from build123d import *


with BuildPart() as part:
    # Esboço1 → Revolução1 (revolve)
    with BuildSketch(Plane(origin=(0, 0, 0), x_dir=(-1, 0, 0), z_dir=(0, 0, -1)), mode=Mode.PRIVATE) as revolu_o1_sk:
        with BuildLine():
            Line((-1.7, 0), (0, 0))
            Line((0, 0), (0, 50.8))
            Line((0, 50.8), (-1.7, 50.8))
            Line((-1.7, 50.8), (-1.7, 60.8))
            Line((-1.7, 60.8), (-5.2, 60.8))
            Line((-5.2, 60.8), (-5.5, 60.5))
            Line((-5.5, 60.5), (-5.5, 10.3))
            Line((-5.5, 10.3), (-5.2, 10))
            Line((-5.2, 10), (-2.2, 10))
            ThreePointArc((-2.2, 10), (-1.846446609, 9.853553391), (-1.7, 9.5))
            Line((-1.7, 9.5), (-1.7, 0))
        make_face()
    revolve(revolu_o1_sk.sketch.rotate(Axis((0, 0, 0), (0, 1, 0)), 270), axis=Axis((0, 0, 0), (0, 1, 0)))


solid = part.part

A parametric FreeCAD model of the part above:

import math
import FreeCAD as App
import Part
import Sketcher

V = App.Vector
Q = App.Units.Quantity

doc = App.newDocument("Part")
body = doc.addObject("PartDesign::Body", "Body")

sketch1 = body.newObject("Sketcher::SketchObject", "Sketch")
sketch1.AttachmentSupport = (doc.getObject("XY_Plane"), [""])
sketch1.MapMode = "FlatFace"
sketch1.addGeometry([
    Part.LineSegment(V(1.7, 0, 0), V(0, 0, 0)),
    Part.LineSegment(V(0, 0, 0), V(0, 50.8, 0)),
    Part.LineSegment(V(0, 50.8, 0), V(1.7, 50.8, 0)),
    Part.LineSegment(V(1.7, 50.8, 0), V(1.7, 60.8, 0)),
    Part.LineSegment(V(1.7, 60.8, 0), V(5.2, 60.8, 0)),
    Part.LineSegment(V(5.2, 60.8, 0), V(5.5, 60.5, 0)),
    Part.LineSegment(V(5.5, 60.5, 0), V(5.5, 10.3, 0)),
    Part.LineSegment(V(5.5, 10.3, 0), V(5.2, 10, 0)),
    Part.LineSegment(V(5.2, 10, 0), V(2.2, 10, 0)),
    Part.ArcOfCircle(Part.Circle(V(2.2, 9.5, 0), V(0, 0, 1), 0.5), math.radians(90), math.radians(180)),
    Part.LineSegment(V(1.7, 9.5, 0), V(1.7, 0, 0)),
], False)
sketch1.addConstraint([
    Sketcher.Constraint("Coincident", 0, 2, 1, 1),
    Sketcher.Constraint("Coincident", 1, 2, 2, 1),
    Sketcher.Constraint("Coincident", 2, 2, 3, 1),
    Sketcher.Constraint("Coincident", 3, 2, 4, 1),
    Sketcher.Constraint("Coincident", 4, 2, 5, 1),
    Sketcher.Constraint("Coincident", 5, 2, 6, 1),
    Sketcher.Constraint("Coincident", 6, 2, 7, 1),
    Sketcher.Constraint("Coincident", 7, 2, 8, 1),
    Sketcher.Constraint("Tangent", 8, 2, 9, 1),
    Sketcher.Constraint("Tangent", 9, 2, 10, 1),
    Sketcher.Constraint("Coincident", 10, 2, 0, 1),
    Sketcher.Constraint("Horizontal", 0),
    Sketcher.Constraint("Vertical", 1),
    Sketcher.Constraint("Horizontal", 2),
    Sketcher.Constraint("Vertical", 3),
    Sketcher.Constraint("Horizontal", 4),
    Sketcher.Constraint("Vertical", 6),
    Sketcher.Constraint("Horizontal", 8),
    Sketcher.Constraint("Vertical", 10),
    Sketcher.Constraint("Coincident", 0, 2, -1, 1),
    Sketcher.Constraint("Perpendicular", 5, 7),
    Sketcher.Constraint("Vertical", 4, 2, 7, 2),
    Sketcher.Constraint("Vertical", 3, 2, 9, 2),
    Sketcher.Constraint("Equal", 5, 7),
    Sketcher.Constraint("Radius", 9, Q("0.5 mm")),
    Sketcher.Constraint("DistanceX", 8, 2, 8, 1, Q("3 mm")),
    Sketcher.Constraint("DistanceY", 3, 1, 3, 2, Q("10 mm")),
    Sketcher.Constraint("DistanceX", 0, 2, 0, 1, Q("1.7 mm")),
    Sketcher.Constraint("DistanceY", 1, 1, 1, 2, Q("50.8 mm")),
    Sketcher.Constraint("DistanceY", 6, 2, 6, 1, Q("50.2 mm")),
    Sketcher.Constraint("DistanceY", 10, 2, 10, 1, Q("9.5 mm")),
])
revolution = body.newObject("PartDesign::Revolution", "Revolution")
revolution.Profile = sketch1
revolution.ReferenceAxis = (sketch1, ["V_Axis"])
revolution.Angle = 360

doc.recompute()
